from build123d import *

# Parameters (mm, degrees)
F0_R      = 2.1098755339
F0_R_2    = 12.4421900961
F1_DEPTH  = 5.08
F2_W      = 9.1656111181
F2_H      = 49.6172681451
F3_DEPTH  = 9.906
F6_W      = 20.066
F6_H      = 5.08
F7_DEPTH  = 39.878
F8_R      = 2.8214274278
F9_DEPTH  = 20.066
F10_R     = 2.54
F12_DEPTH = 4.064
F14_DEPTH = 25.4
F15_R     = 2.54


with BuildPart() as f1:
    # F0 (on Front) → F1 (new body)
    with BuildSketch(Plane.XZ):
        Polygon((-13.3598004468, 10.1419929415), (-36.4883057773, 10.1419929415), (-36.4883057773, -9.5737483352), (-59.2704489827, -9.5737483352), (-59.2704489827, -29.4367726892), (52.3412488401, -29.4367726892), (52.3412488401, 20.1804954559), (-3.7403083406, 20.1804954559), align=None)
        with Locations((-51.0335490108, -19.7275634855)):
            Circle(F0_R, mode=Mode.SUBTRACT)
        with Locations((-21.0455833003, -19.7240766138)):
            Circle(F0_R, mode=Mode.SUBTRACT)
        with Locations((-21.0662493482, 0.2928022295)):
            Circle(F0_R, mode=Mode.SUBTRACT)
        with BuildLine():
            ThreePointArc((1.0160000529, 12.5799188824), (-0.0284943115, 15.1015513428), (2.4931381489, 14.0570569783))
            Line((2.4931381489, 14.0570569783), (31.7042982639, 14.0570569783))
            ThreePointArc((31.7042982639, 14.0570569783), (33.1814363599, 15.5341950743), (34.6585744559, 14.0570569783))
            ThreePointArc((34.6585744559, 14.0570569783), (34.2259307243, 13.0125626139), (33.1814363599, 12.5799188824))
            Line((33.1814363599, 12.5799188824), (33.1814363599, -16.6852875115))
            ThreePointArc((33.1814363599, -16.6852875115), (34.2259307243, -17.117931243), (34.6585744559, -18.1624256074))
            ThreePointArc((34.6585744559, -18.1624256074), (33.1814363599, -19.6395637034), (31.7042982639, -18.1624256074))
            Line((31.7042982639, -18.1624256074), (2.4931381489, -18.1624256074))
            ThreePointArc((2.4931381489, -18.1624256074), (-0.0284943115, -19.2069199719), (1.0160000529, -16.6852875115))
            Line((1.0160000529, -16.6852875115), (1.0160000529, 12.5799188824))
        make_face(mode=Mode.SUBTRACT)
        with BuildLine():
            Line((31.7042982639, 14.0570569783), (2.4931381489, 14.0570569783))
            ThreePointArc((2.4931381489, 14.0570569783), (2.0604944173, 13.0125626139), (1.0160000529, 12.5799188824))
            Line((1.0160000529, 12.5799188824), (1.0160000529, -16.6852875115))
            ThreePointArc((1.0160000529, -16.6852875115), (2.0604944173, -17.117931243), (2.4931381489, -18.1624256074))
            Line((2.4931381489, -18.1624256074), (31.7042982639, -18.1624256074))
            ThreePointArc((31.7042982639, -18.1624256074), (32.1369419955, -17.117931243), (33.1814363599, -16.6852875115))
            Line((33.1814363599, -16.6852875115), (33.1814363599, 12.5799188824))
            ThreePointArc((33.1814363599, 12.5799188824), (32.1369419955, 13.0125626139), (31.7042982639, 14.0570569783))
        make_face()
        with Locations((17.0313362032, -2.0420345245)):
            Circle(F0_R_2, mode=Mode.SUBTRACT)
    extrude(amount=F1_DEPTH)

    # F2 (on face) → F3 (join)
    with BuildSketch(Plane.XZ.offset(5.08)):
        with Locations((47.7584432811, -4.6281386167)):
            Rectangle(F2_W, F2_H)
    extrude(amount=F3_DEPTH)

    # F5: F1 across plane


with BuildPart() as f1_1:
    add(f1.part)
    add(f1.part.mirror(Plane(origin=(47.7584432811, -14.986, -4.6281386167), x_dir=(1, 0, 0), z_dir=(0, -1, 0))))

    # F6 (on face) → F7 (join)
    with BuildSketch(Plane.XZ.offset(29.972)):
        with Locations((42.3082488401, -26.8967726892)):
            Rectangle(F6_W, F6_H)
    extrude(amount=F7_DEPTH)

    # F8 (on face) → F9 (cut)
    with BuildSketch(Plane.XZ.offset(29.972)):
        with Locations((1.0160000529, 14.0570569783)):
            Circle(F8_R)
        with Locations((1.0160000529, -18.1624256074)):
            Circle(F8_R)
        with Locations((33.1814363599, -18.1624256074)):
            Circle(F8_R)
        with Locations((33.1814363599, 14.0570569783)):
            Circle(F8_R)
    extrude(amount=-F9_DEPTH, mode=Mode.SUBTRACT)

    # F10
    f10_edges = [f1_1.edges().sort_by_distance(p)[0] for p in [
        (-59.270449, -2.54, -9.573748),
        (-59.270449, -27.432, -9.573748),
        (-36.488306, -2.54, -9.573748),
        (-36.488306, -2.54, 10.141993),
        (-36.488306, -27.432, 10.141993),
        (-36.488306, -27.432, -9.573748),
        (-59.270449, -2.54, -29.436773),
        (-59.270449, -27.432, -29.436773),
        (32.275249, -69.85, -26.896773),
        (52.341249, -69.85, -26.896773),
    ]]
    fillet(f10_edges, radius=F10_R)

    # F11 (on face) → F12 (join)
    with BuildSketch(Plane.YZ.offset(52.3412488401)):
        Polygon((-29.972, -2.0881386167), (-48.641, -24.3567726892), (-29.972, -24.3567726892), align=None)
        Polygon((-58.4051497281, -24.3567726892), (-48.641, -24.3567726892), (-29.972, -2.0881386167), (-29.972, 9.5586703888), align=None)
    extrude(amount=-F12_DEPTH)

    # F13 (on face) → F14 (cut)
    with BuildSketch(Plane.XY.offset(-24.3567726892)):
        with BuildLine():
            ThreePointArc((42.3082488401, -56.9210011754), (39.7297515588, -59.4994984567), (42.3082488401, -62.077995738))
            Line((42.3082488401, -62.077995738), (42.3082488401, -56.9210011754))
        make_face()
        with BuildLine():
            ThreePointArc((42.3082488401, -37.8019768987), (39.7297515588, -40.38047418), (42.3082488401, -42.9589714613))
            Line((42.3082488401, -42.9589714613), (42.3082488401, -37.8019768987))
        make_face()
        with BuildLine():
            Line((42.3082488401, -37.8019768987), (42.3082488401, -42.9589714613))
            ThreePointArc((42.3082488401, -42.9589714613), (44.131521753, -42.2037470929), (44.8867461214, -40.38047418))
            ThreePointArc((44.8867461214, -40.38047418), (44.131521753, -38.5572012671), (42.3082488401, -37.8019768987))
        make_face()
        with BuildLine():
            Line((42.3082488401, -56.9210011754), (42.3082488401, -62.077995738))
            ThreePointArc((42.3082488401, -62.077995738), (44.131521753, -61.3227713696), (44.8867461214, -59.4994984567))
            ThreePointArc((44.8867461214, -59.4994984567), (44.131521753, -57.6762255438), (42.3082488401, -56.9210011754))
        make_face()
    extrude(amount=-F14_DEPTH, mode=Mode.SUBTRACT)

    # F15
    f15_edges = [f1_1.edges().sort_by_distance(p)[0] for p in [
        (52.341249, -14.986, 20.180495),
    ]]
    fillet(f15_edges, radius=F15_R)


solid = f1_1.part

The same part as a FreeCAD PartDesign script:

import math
import FreeCAD as App
import Part
import Sketcher

V = App.Vector
Q = App.Units.Quantity


def edges_at(feature, points):
    """Names of the edges that pass closest to the given points."""
    edges = feature.Shape.Edges
    near = lambda p: min(range(len(edges)), key=lambda i: edges[i].distToShape(Part.Vertex(*p))[0])
    return sorted({f"Edge{near(p) + 1}" for p in points})


def add_polygon(sketch, points):
    """Adds a closed chain of lines whose ends are joined by coincident constraints."""
    first, n = sketch.GeometryCount, len(points)
    for a, b in zip(points, points[1:] + points[:1]):
        sketch.addGeometry(Part.LineSegment(App.Vector(*a, 0), App.Vector(*b, 0)), False)
    for i in range(n):
        sketch.addConstraint(Sketcher.Constraint("Coincident", first + i, 2, first + (i + 1) % n, 1))

doc = App.newDocument("Part")
body = doc.addObject("PartDesign::Body", "Body")

sketch1 = doc.addObject("Sketcher::SketchObject", "Sketch")
body.addObject(sketch1)
sketch1.AttachmentSupport = (doc.XZ_Plane, [""])
sketch1.MapMode = "FlatFace"
add_polygon(sketch1, [(-13.4, 10.1), (-36.5, 10.1), (-36.5, -9.6), (-59.3, -9.6), (-59.3, -29.4), (52.3, -29.4), (52.3, 20.2), (-3.7, 20.2)])
sketch1.addGeometry(Part.Circle(V(-51, -19.7, 0), V(0, 0, 1), 2.1), False)
sketch1.addGeometry(Part.Circle(V(-21, -19.7, 0), V(0, 0, 1), 2.1), False)
sketch1.addGeometry(Part.ArcOfCircle(Part.Circle(V(1, -18.2, 0), V(0, 0, 1), 1.5), math.radians(90), math.radians(360)), False)
sketch1.addGeometry(Part.ArcOfCircle(Part.Circle(V(1, -18.2, 0), V(0, 0, 1), 1.5), math.radians(0), math.radians(90)), False)
sketch1.addGeometry(Part.ArcOfCircle(Part.Circle(V(33.2, -18.2, 0), V(0, 0, 1), 1.5), math.radians(180), math.radians(360)), False)
sketch1.addGeometry(Part.ArcOfCircle(Part.Circle(V(33.2, -18.2, 0), V(0, 0, 1), 1.5), math.radians(90), math.radians(180)), False)
sketch1.addGeometry(Part.ArcOfCircle(Part.Circle(V(33.2, -18.2, 0), V(0, 0, 1), 1.5), math.radians(0), math.radians(90)), False)
sketch1.addGeometry(Part.Circle(V(-21.1, 0.3, 0), V(0, 0, 1), 2.1), False)
sketch1.addGeometry(Part.Circle(V(17, -2, 0), V(0, 0, 1), 12.4), False)
sketch1.addGeometry(Part.ArcOfCircle(Part.Circle(V(1, 14.1, 0), V(0, 0, 1), 1.5), math.radians(0), math.radians(270)), False)
sketch1.addGeometry(Part.ArcOfCircle(Part.Circle(V(1, 14.1, 0), V(0, 0, 1), 1.5), math.radians(-90), math.radians(0)), False)
sketch1.addGeometry(Part.ArcOfCircle(Part.Circle(V(33.2, 14.1, 0), V(0, 0, 1), 1.5), math.radians(-90), math.radians(0)), False)
sketch1.addGeometry(Part.ArcOfCircle(Part.Circle(V(33.2, 14.1, 0), V(0, 0, 1), 1.5), math.radians(180), math.radians(270)), False)
sketch1.addGeometry(Part.ArcOfCircle(Part.Circle(V(33.2, 14.1, 0), V(0, 0, 1), 1.5), math.radians(0), math.radians(180)), False)
sketch1.addConstraint([
    Sketcher.Constraint("Tangent", 10, 1, 11, 2),
    Sketcher.Constraint("Coincident", 11, 1, 10, 2),
    Sketcher.Constraint("Tangent", 12, 1, 13, 2),
    Sketcher.Constraint("Tangent", 13, 1, 14, 2),
    Sketcher.Constraint("Tangent", 14, 1, 12, 2),
    Sketcher.Constraint("Tangent", 17, 1, 18, 2),
    Sketcher.Constraint("Coincident", 18, 1, 17, 2),
    Sketcher.Constraint("Tangent", 19, 1, 20, 2),
    Sketcher.Constraint("Tangent", 20, 1, 21, 2),
    Sketcher.Constraint("Tangent", 21, 1, 19, 2),
    Sketcher.Constraint("Horizontal", 0),
    Sketcher.Constraint("Vertical", 1),
    Sketcher.Constraint("Horizontal", 2),
    Sketcher.Constraint("Vertical", 3),
    Sketcher.Constraint("Horizontal", 4),
    Sketcher.Constraint("Vertical", 5),
    Sketcher.Constraint("Horizontal", 6),
    Sketcher.Constraint("Equal", 8, 9),
    Sketcher.Constraint("Equal", 11, 12),
    Sketcher.Constraint("Equal", 9, 15),
    Sketcher.Constraint("Equal", 14, 17),
    Sketcher.Constraint("Equal", 18, 19),
    Sketcher.Constraint("Horizontal", 11, 3, 12, 3),
    Sketcher.Constraint("Horizontal", 18, 3, 19, 3),
    Sketcher.Constraint("Horizontal", 14, 3, 11, 1),
    Sketcher.Constraint("Horizontal", 11, 1, 12, 1),
    Sketcher.Constraint("Horizontal", 12, 1, 14, 1),
    Sketcher.Constraint("Horizontal", 21, 3, 17, 1),
    Sketcher.Constraint("Horizontal", 17, 1, 20, 1),
    Sketcher.Constraint("Horizontal", 20, 1, 21, 1),
    Sketcher.Constraint("Vertical", 11, 3, 17, 3),
    Sketcher.Constraint("Vertical", 14, 3, 19, 3),
    Sketcher.Constraint("Vertical", 18, 3, 10, 1),
    Sketcher.Constraint("Vertical", 21, 3, 13, 1),
    Sketcher.Constraint("Vertical", 10, 1, 18, 1),
    Sketcher.Constraint("Vertical", 13, 1, 19, 1),
    Sketcher.Constraint("Diameter", 16, Q("0.9797 in")),
    Sketcher.Constraint("DistanceX", -1, 1, 10, 3, Q("0.04 in")),
    Sketcher.Constraint("Diameter", 8, 4.219751),
    Sketcher.Constraint("Radius", 10, 1.477138),
    Sketcher.Constraint("DistanceY", 1, 2, 1, 1, 19.715741),
    Sketcher.Constraint("DistanceY", 5, 1, 5, 2, 49.617268),
    Sketcher.Constraint("DistanceX", 7, 2, -1, 1, 13.3598),
    Sketcher.Constraint("DistanceX", -1, 1, 12, 1, 31.704298),
    Sketcher.Constraint("DistanceX", 8, 3, 15, 3, 29.9673),
    Sketcher.Constraint("DistanceX", 16, 3, 12, 3, 16.1501),
    Sketcher.Constraint("DistanceX", 2, 2, 8, 3, 8.2369),
    Sketcher.Constraint("Distance", 7, 13.903459),
    Sketcher.Constraint("DistanceX", 0, 2, 0, 1, 23.128505),
    Sketcher.Constraint("DistanceX", 2, 2, 2, 1, 22.782143),
    Sketcher.Constraint("DistanceX", 4, 1, 4, 2, 111.611698),
    Sketcher.Constraint("DistanceX", 6, 2, 6, 1, 56.081557),
    Sketcher.Constraint("DistanceY", 1, 2, -1, 1, 9.573748),
    Sketcher.Constraint("DistanceY", -1, 1, 18, 1, 12.579919),
    Sketcher.Constraint("DistanceY", 9, 3, 10, 3, 1.561651),
    Sketcher.Constraint("DistanceX", 9, 3, 12, 3, 54.22702),
    Sketcher.Constraint("DistanceY", 9, 3, 15, 3, 20.016879),
    Sketcher.Constraint("DistanceY", 10, 3, 16, 3, 16.120391),
    Sketcher.Constraint("DistanceY", 16, 3, 17, 3, 16.099092),
    Sketcher.Constraint("DistanceY", 3, 2, 8, 3, 9.709209),
])
pad1 = doc.addObject("PartDesign::Pad", "Pad")
body.addObject(pad1)
pad1.Profile = sketch1
pad1.Length = Q("0.2 in")

sketch2 = doc.addObject("Sketcher::SketchObject", "Sketch001")
body.addObject(sketch2)
sketch2.AttachmentSupport = (doc.XZ_Plane, [""])
sketch2.MapMode = "FlatFace"
sketch2.AttachmentOffset = App.Placement(V(0, 0, 0.2 * 25.4), App.Rotation())
add_polygon(sketch2, [(43, 20), (43, -29), (52, -29), (52, 20)])
sketch2.addConstraint([
    Sketcher.Constraint("Vertical", 0),
    Sketcher.Constraint("Horizontal", 1),
    Sketcher.Constraint("Vertical", 2),
    Sketcher.Constraint("Horizontal", 3),
    Sketcher.Constraint("DistanceX", 1, 1, 1, 2, 9.165611),
    Sketcher.Constraint("DistanceY", 0, 2, 0, 1, 49.617268),
    Sketcher.Constraint("DistanceX", -1, 1, 1, 2, 52.341249),
    Sketcher.Constraint("DistanceY", 0, 2, -1, 1, 29.436773),
])
pad2 = doc.addObject("PartDesign::Pad", "Pad001")
body.addObject(pad2)
pad2.Profile = sketch2
pad2.Length = Q("0.39 in")
body2 = doc.addObject("PartDesign::Body", "Body001")
doc.recompute()

body2.BaseFeature = body
doc.recompute()

mirroring = doc.addObject("Part::Mirroring", "Mirroring")
mirroring.Source = body
mirroring.Base = V(47.758443, -14.986, -4.628139)
mirroring.Normal = V(0, -1, 0)
body3 = doc.addObject("PartDesign::Body", "Body002")
body3.BaseFeature = mirroring
boolean = doc.addObject("PartDesign::Boolean", "Boolean")
body2.addObject(boolean)
boolean.Type = "Fuse"
boolean.addObjects([body3])
doc.recompute()

sketch3 = doc.addObject("Sketcher::SketchObject", "Sketch002")
body2.addObject(sketch3)
sketch3.AttachmentSupport = (doc.getObject("XZ_Plane001"), [""])
sketch3.MapMode = "FlatFace"
sketch3.AttachmentOffset = App.Placement(V(0, 0, 1.18 * 25.4), App.Rotation())
add_polygon(sketch3, [(32, -24), (32, -29), (52, -29), (52, -24)])
sketch3.addConstraint([
    Sketcher.Constraint("Vertical", 0),
    Sketcher.Constraint("Horizontal", 1),
    Sketcher.Constraint("Vertical", 2),
    Sketcher.Constraint("Horizontal", 3),
    Sketcher.Constraint("DistanceY", 0, 2, 0, 1, Q("0.2 in")),
    Sketcher.Constraint("DistanceX", 1, 1, 1, 2, Q("0.79 in")),
    Sketcher.Constraint("DistanceX", -1, 1, 0, 2, 32.275249),
    Sketcher.Constraint("DistanceY", 0, 2, -1, 1, 29.436773),
])
pad3 = doc.addObject("PartDesign::Pad", "Pad002")
body2.addObject(pad3)
pad3.Profile = sketch3
pad3.Length = Q("1.57 in")

sketch4 = doc.addObject("Sketcher::SketchObject", "Sketch003")
body2.addObject(sketch4)
sketch4.AttachmentSupport = (doc.getObject("XZ_Plane001"), [""])
sketch4.MapMode = "FlatFace"
sketch4.AttachmentOffset = App.Placement(V(0, 0, 1.18 * 25.4), App.Rotation())
sketch4.addGeometry([
    Part.Circle(V(1, 14.1, 0), V(0, 0, 1), 2.8),
    Part.Circle(V(1, -18.2, 0), V(0, 0, 1), 2.8),
    Part.Circle(V(33.2, -18.2, 0), V(0, 0, 1), 2.8),
    Part.Circle(V(33.2, 14.1, 0), V(0, 0, 1), 2.8),
], False)
sketch4.addConstraint([
    Sketcher.Constraint("Equal", 0, 1),
    Sketcher.Constraint("Equal", 1, 2),
    Sketcher.Constraint("Equal", 2, 3),
    Sketcher.Constraint("Horizontal", 1, 3, 2, 3),
    Sketcher.Constraint("Horizontal", 0, 3, 3, 3),
    Sketcher.Constraint("Vertical", 0, 3, 1, 3),
    Sketcher.Constraint("Vertical", 2, 3, 3, 3),
    Sketcher.Constraint("DistanceX", -1, 1, 0, 3, Q("0.04 in")),
    Sketcher.Constraint("Diameter", 0, 5.642855),
    Sketcher.Constraint("DistanceY", -1, 1, 0, 3, 14.057057),
    Sketcher.Constraint("DistanceY", 1, 3, -1, 1, 18.162426),
    Sketcher.Constraint("DistanceX", -1, 1, 2, 3, 33.181436),
])
pocket1 = doc.addObject("PartDesign::Pocket", "Pocket")
body2.addObject(pocket1)
pocket1.Profile = sketch4
pocket1.Length = Q("0.79 in")
doc.recompute()

fillet = doc.addObject("PartDesign::Fillet", "Fillet")
body2.addObject(fillet)
fillet.Base = (pocket1, edges_at(pocket1, [
    (-59.27, -2.54, -9.574),
    (-59.27, -27.432, -9.574),
    (-36.488, -2.54, -9.574),
    (-36.488, -2.54, 10.142),
    (-36.488, -27.432, 10.142),
    (-36.488, -27.432, -9.574),
    (-59.27, -2.54, -29.437),
    (-59.27, -27.432, -29.437),
    (32.275, -69.85, -26.897),
    (52.341, -69.85, -26.897),
]))
fillet.Radius = Q("0.1 in")

sketch5 = doc.addObject("Sketcher::SketchObject", "Sketch004")
body2.addObject(sketch5)
sketch5.AttachmentSupport = (doc.getObject("YZ_Plane001"), [""])
sketch5.MapMode = "FlatFace"
sketch5.AttachmentOffset = App.Placement(V(0, 0, 52.341249), App.Rotation())
add_polygon(sketch5, [(-30, -24), (-30, 10), (-58, -24)])
sketch5.addConstraint([
    Sketcher.Constraint("Vertical", 0),
    Sketcher.Constraint("Horizontal", 2),
    Sketcher.Constraint("DistanceX", 0, 2, -1, 1, Q("1.18 in")),
    Sketcher.Constraint("DistanceX", 2, 1, 2, 2, 28.43315),
    Sketcher.Constraint("DistanceY", 0, 1, 0, 2, 33.915443),
    Sketcher.Constraint("DistanceY", -1, 1, 0, 2, 9.55867),
])
pad4 = doc.addObject("PartDesign::Pad", "Pad003")
body2.addObject(pad4)
pad4.Profile = sketch5
pad4.Length = Q("0.16 in")
pad4.Reversed = True

sketch6 = doc.addObject("Sketcher::SketchObject", "Sketch005")
body2.addObject(sketch6)
sketch6.AttachmentSupport = (doc.getObject("XY_Plane001"), [""])
sketch6.MapMode = "FlatFace"
sketch6.AttachmentOffset = App.Placement(V(0, 0, -24.356773), App.Rotation())
sketch6.addGeometry([
    Part.ArcOfCircle(Part.Circle(V(42.3, -59.5, 0), V(0, 0, 1), 2.6), math.radians(90), math.radians(270)),
    Part.ArcOfCircle(Part.Circle(V(42.3, -59.5, 0), V(0, 0, 1), 2.6), math.radians(-90), math.radians(0)),
    Part.ArcOfCircle(Part.Circle(V(42.3, -59.5, 0), V(0, 0, 1), 2.6), math.radians(0), math.radians(90)),
    Part.ArcOfCircle(Part.Circle(V(42.3, -40.4, 0), V(0, 0, 1), 2.6), math.radians(90), math.radians(270)),
    Part.ArcOfCircle(Part.Circle(V(42.3, -40.4, 0), V(0, 0, 1), 2.6), math.radians(-90), math.radians(0)),
    Part.ArcOfCircle(Part.Circle(V(42.3, -40.4, 0), V(0, 0, 1), 2.6), math.radians(0), math.radians(90)),
], False)
sketch6.addConstraint([
    Sketcher.Constraint("Tangent", 0, 2, 1, 1),
    Sketcher.Constraint("Tangent", 1, 2, 2, 1),
    Sketcher.Constraint("Tangent", 2, 2, 0, 1),
    Sketcher.Constraint("Tangent", 3, 2, 4, 1),
    Sketcher.Constraint("Tangent", 4, 2, 5, 1),
    Sketcher.Constraint("Tangent", 5, 2, 3, 1),
    Sketcher.Constraint("Equal", 2, 3),
    Sketcher.Constraint("Horizontal", 2, 3, 1, 2),
    Sketcher.Constraint("Horizontal", 5, 3, 4, 2),
    Sketcher.Constraint("Vertical", 2, 3, 3, 3),
    Sketcher.Constraint("Vertical", 5, 3, 0, 2),
    Sketcher.Constraint("Vertical", 0, 2, 2, 2),
    Sketcher.Constraint("Vertical", 2, 2, 3, 2),
    Sketcher.Constraint("Vertical", 3, 2, 5, 2),
    Sketcher.Constraint("DistanceY", 0, 3, -1, 1, Q("2.3424999 in")),
    Sketcher.Constraint("Radius", 0, 2.578497),
    Sketcher.Constraint("DistanceX", -1, 1, 0, 3, 42.308249),
    Sketcher.Constraint("DistanceY", 3, 2, -1, 1, 42.958971),
])
pocket2 = doc.addObject("PartDesign::Pocket", "Pocket001")
body2.addObject(pocket2)
pocket2.Profile = sketch6
pocket2.Length = Q("1 in")
doc.recompute()

fillet2 = doc.addObject("PartDesign::Fillet", "Fillet001")
body2.addObject(fillet2)
fillet2.Base = (pocket2, edges_at(pocket2, [(52.341, -14.986, 20.18)]))
fillet2.Radius = Q("0.1 in")
mirroring.Visibility = False

doc.recompute()
